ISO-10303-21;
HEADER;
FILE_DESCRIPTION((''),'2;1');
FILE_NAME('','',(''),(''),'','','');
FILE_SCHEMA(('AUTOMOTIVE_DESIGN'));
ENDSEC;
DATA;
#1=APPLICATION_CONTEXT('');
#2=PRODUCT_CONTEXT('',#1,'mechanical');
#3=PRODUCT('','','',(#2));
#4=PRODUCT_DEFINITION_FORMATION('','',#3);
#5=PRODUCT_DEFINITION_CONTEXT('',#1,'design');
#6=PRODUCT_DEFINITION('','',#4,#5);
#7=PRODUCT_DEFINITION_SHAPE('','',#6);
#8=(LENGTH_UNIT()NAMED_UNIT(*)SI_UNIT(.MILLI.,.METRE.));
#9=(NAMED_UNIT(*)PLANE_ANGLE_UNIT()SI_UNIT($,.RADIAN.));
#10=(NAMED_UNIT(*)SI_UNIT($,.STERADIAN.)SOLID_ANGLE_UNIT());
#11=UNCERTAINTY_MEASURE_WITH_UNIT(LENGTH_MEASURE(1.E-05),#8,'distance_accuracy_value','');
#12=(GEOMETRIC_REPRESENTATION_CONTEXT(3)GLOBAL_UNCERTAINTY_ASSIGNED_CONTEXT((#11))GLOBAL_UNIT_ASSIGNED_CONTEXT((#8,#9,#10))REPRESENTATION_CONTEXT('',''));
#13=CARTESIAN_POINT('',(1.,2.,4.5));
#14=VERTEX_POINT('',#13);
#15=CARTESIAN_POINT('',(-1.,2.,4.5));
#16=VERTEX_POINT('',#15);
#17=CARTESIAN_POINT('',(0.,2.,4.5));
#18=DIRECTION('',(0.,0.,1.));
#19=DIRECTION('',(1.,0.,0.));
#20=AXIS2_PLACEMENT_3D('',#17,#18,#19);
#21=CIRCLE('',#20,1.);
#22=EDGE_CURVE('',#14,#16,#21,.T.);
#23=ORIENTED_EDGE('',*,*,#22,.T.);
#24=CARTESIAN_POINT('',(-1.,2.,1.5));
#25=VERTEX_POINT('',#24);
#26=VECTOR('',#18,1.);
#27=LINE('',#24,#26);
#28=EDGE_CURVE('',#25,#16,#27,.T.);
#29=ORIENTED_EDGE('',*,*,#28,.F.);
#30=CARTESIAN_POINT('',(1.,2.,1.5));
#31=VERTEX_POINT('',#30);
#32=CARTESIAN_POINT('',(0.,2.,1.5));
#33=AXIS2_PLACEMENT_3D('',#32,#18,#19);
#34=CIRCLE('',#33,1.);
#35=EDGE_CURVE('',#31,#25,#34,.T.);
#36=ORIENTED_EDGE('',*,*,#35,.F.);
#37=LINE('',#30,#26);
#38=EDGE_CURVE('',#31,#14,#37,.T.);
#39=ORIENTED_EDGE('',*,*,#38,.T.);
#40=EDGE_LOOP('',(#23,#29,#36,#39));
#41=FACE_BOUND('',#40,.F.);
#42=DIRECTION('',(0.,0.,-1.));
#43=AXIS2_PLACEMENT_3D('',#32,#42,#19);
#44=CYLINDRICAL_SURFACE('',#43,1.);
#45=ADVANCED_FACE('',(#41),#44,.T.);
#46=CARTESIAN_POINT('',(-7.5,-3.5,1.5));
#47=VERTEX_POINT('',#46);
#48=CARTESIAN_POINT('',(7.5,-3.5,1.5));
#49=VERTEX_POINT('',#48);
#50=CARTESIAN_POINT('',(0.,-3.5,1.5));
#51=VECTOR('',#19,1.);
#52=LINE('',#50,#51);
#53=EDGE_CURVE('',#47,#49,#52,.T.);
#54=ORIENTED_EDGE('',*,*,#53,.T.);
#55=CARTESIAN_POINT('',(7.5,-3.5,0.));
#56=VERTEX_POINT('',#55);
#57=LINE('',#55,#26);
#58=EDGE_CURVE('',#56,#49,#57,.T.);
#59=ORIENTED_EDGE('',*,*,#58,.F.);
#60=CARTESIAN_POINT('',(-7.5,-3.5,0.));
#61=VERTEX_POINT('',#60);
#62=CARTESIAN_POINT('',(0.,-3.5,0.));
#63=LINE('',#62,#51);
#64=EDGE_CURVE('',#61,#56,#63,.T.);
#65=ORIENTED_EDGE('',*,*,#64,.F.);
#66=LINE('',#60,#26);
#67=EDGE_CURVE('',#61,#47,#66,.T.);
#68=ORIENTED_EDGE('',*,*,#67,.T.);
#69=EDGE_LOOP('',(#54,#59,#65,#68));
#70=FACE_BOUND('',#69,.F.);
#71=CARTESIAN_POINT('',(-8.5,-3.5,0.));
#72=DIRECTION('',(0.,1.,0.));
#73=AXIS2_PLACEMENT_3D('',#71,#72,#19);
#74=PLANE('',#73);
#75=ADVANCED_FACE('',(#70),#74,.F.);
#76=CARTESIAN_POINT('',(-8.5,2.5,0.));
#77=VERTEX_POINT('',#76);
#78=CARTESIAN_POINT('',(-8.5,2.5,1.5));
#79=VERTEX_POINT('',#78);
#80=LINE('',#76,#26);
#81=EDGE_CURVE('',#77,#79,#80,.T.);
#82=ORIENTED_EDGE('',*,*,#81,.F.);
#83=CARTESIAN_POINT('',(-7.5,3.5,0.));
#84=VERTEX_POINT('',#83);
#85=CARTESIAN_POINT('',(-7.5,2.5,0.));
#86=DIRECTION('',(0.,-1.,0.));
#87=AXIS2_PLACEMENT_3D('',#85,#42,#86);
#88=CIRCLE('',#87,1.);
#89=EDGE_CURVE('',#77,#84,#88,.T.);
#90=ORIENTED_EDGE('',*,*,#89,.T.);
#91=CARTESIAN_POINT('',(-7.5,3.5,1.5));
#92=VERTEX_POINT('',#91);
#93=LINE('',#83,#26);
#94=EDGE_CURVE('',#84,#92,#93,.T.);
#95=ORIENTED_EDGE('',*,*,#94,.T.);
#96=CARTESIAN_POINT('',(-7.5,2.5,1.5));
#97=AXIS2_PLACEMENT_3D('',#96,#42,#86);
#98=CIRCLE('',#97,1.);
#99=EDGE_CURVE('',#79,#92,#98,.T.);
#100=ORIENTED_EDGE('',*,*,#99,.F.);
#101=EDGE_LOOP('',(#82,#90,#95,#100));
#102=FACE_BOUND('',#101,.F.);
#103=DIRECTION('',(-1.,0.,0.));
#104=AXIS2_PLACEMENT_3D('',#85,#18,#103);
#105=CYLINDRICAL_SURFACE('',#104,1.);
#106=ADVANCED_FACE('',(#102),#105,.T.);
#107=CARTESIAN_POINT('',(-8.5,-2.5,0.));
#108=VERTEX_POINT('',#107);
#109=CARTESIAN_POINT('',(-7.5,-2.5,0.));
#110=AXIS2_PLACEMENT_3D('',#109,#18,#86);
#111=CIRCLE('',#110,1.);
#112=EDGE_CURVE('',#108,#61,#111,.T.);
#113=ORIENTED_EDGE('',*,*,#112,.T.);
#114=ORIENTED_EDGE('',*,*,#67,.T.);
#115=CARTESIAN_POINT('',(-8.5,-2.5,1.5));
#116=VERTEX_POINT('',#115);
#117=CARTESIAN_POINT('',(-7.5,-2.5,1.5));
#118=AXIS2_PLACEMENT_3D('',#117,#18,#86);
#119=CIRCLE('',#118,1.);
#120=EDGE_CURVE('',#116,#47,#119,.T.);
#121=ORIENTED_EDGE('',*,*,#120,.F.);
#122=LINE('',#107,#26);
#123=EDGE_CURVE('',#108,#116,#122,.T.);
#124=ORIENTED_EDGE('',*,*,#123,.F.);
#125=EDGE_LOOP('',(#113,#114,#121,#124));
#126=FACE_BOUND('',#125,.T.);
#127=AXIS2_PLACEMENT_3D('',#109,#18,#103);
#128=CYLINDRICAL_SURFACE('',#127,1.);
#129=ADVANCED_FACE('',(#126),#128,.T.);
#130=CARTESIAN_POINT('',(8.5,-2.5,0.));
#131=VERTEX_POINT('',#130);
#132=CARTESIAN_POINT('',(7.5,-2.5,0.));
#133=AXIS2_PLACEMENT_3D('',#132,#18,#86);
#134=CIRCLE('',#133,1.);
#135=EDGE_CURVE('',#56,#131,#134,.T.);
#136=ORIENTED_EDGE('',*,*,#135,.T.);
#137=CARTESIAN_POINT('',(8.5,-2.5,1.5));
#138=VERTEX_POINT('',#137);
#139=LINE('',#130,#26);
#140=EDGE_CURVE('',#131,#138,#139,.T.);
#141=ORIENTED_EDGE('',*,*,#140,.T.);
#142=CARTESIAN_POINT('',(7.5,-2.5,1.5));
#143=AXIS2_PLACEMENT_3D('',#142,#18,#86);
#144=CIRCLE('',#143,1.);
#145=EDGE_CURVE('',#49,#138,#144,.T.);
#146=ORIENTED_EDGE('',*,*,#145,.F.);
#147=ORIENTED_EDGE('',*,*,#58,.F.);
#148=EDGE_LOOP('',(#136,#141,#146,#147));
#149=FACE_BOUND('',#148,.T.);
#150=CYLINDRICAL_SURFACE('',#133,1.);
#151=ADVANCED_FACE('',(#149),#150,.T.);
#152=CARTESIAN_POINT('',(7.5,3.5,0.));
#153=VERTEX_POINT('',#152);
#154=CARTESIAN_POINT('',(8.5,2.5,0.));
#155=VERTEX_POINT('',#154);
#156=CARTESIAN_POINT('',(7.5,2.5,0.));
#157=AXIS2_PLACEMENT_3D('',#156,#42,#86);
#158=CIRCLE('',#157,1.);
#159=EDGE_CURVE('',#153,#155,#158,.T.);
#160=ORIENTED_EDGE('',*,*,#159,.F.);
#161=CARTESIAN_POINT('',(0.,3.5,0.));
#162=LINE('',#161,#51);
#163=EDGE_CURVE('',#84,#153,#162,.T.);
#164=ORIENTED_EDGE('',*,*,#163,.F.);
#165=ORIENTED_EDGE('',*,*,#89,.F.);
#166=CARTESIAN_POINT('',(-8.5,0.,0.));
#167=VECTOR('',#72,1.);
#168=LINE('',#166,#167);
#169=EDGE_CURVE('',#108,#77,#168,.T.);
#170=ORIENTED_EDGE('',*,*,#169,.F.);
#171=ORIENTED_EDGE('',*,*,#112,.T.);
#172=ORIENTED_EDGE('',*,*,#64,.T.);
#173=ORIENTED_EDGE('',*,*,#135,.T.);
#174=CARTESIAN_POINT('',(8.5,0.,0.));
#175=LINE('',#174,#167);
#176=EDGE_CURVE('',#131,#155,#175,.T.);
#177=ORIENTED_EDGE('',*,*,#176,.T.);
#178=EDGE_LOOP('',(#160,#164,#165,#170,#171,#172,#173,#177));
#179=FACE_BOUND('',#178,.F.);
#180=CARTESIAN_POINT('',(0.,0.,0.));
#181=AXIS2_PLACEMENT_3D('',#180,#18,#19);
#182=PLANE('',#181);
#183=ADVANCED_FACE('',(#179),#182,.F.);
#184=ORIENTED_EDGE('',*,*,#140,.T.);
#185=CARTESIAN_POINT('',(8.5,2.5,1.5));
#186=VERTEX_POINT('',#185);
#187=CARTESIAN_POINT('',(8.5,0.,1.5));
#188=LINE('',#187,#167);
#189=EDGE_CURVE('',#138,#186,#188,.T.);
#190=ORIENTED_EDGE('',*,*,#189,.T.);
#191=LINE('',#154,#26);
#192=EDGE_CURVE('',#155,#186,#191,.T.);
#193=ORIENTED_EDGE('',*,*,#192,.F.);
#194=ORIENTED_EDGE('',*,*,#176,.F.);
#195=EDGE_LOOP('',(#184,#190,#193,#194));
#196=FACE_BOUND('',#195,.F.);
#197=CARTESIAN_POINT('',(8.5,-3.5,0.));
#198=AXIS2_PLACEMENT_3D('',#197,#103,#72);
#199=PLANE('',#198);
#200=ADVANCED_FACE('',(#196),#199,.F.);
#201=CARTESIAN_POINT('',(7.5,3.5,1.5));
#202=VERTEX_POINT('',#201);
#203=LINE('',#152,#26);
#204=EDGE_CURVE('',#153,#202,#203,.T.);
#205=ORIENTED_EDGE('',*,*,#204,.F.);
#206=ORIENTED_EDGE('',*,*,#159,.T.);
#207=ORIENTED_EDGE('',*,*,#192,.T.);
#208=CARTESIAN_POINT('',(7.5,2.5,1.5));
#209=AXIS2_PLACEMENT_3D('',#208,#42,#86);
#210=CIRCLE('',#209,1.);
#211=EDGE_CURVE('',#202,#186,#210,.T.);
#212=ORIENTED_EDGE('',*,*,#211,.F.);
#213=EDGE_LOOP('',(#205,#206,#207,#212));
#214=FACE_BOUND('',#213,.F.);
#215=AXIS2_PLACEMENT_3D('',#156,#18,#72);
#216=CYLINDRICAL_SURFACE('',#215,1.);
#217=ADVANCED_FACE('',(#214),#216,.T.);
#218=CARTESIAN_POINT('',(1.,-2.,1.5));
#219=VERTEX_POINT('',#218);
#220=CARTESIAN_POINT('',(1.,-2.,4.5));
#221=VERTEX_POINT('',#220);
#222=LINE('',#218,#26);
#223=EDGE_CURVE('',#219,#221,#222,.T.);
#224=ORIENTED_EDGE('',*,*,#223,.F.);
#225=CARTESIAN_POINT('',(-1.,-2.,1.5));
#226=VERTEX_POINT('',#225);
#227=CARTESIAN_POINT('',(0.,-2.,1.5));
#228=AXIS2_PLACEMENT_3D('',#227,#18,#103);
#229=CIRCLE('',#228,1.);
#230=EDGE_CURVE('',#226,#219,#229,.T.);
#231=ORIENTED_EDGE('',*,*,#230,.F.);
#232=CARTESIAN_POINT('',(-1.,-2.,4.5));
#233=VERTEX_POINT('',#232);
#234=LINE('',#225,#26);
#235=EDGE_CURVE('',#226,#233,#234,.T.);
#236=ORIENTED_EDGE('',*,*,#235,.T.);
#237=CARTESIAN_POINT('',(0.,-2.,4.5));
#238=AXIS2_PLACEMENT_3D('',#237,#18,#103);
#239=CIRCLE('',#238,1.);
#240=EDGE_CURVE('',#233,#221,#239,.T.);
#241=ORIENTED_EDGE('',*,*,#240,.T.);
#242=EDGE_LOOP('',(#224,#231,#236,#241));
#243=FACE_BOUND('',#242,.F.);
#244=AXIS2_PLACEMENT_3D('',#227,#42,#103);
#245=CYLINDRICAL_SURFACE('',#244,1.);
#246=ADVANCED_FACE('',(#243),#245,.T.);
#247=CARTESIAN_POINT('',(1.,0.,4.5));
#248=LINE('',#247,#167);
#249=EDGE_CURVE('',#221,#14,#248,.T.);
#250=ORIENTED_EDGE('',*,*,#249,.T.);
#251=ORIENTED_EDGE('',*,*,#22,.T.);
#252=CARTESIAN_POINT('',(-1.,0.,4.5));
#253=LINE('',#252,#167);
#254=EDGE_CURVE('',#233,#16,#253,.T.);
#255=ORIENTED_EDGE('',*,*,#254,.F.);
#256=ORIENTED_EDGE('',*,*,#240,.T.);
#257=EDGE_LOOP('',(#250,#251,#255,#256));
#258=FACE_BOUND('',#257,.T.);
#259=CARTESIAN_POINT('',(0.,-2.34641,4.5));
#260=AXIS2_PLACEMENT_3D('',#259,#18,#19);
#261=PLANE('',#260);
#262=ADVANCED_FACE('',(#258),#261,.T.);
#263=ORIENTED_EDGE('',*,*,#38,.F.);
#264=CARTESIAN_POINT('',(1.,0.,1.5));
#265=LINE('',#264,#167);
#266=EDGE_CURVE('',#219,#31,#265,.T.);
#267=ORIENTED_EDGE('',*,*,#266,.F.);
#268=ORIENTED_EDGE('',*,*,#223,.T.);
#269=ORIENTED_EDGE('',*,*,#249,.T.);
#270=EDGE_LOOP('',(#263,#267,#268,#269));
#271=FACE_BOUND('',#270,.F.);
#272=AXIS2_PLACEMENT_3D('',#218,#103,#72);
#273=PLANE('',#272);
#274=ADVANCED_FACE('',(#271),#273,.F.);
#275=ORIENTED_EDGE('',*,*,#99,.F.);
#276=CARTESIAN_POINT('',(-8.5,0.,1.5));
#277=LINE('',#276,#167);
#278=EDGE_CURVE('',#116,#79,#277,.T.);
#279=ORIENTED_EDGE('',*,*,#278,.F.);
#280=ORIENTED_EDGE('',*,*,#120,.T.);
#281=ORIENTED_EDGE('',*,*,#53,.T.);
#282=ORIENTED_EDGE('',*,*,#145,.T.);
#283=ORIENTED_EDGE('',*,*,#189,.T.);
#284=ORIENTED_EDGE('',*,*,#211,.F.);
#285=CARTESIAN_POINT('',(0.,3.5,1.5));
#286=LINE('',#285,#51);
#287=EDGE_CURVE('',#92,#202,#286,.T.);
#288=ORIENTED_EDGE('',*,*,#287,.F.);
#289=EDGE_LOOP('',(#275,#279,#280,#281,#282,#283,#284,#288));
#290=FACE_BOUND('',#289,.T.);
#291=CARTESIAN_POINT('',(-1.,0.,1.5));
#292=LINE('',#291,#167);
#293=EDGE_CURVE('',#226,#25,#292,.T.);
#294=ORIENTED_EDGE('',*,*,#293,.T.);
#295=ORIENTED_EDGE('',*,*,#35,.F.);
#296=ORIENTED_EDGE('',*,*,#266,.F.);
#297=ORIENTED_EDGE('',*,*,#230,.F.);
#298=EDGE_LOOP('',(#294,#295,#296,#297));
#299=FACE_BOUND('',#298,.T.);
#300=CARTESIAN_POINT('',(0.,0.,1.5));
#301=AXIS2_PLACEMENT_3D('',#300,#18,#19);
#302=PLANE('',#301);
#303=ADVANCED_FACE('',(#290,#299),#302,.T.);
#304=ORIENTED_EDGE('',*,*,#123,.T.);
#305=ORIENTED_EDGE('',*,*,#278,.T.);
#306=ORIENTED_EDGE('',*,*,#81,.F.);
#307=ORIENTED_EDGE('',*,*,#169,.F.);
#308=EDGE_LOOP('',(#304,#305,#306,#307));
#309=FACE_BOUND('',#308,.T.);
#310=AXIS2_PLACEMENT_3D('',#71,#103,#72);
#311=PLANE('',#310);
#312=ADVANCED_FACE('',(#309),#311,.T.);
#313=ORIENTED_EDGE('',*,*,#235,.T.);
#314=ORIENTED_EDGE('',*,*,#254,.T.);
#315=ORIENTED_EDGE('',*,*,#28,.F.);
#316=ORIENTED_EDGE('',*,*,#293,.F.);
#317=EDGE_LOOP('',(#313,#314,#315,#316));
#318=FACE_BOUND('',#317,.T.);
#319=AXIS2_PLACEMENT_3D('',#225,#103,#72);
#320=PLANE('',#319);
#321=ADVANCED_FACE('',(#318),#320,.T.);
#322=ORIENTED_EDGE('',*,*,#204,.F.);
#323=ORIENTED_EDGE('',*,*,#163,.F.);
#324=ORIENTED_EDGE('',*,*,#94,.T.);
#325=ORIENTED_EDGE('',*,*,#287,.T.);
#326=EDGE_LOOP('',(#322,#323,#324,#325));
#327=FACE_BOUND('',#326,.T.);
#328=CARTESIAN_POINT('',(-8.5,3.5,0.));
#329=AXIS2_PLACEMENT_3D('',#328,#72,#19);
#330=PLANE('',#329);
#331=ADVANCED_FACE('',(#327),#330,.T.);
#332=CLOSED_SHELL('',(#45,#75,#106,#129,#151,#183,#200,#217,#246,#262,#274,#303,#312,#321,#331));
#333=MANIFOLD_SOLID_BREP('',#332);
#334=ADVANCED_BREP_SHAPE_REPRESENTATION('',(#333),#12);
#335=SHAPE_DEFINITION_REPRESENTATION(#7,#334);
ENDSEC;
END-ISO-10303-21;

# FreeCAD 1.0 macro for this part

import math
import FreeCAD as App
import Part
import Sketcher

V = App.Vector
Q = App.Units.Quantity


def edges_at(feature, points):
    """Names of the edges that pass closest to the given points."""
    edges = feature.Shape.Edges
    near = lambda p: min(range(len(edges)), key=lambda i: edges[i].distToShape(Part.Vertex(*p))[0])
    return sorted({f"Edge{near(p) + 1}" for p in points})


def add_polygon(sketch, points):
    """Adds a closed chain of lines whose ends are joined by coincident constraints."""
    first, n = sketch.GeometryCount, len(points)
    for a, b in zip(points, points[1:] + points[:1]):
        sketch.addGeometry(Part.LineSegment(App.Vector(*a, 0), App.Vector(*b, 0)), False)
    for i in range(n):
        sketch.addConstraint(Sketcher.Constraint("Coincident", first + i, 2, first + (i + 1) % n, 1))

doc = App.newDocument("Part")
body = doc.addObject("PartDesign::Body", "Body")

# Sketch on XY plane
sketch1 = doc.addObject("Sketcher::SketchObject", "Sketch")
body.addObject(sketch1)
sketch1.AttachmentSupport = (doc.XY_Plane, [""])
sketch1.MapMode = "FlatFace"
add_polygon(sketch1, [(-8.5, 3.5), (-8.5, -3.5), (8.5, -3.5), (8.5, 3.5)])  # lines 0-3
sketch1.addConstraint(Sketcher.Constraint("Vertical", 0))
sketch1.addConstraint(Sketcher.Constraint("Horizontal", 1))
sketch1.addConstraint(Sketcher.Constraint("Vertical", 2))
sketch1.addConstraint(Sketcher.Constraint("Horizontal", 3))
sketch1.addConstraint(Sketcher.Constraint("Symmetric", 0, 2, 2, 2, -1, 1))
sketch1.addConstraint(Sketcher.Constraint("DistanceX", 1, 1, 1, 2, Q("17 mm")))
sketch1.addConstraint(Sketcher.Constraint("DistanceY", 0, 2, 0, 1, Q("7 mm")))
pad1 = doc.addObject("PartDesign::Pad", "Pad")
body.addObject(pad1)
pad1.Profile = sketch1
pad1.Length = 1.5

# Sketch on XY plane
sketch2 = doc.addObject("Sketcher::SketchObject", "Sketch001")
body.addObject(sketch2)
sketch2.AttachmentSupport = (doc.XY_Plane, [""])
sketch2.MapMode = "FlatFace"
sketch2.AttachmentOffset = App.Placement(V(0, 0, 1.5), App.Rotation())
sketch2.addGeometry(Part.ArcOfCircle(Part.Circle(V(0, -2, 0), V(0, 0, 1), 1), math.radians(180), math.radians(360)), False)
sketch2.addGeometry(Part.LineSegment(V(1, -2, 0), V(1, 2, 0)), False)
sketch2.addGeometry(Part.ArcOfCircle(Part.Circle(V(0, 2, 0), V(0, 0, 1), 1), math.radians(0), math.radians(180)), False)
sketch2.addGeometry(Part.LineSegment(V(-1, 2, 0), V(-1, -2, 0)), False)
sketch2.addConstraint(Sketcher.Constraint("Tangent", 0, 2, 1, 1))
sketch2.addConstraint(Sketcher.Constraint("Tangent", 1, 2, 2, 1))
sketch2.addConstraint(Sketcher.Constraint("Tangent", 2, 2, 3, 1))
sketch2.addConstraint(Sketcher.Constraint("Tangent", 3, 2, 0, 1))
sketch2.addConstraint(Sketcher.Constraint("Vertical", 1))
sketch2.addConstraint(Sketcher.Constraint("Vertical", 3))
sketch2.addConstraint(Sketcher.Constraint("Symmetric", 0, 3, 2, 3, -1, 1))
sketch2.addConstraint(Sketcher.Constraint("Radius", 0, Q("1 mm")))
sketch2.addConstraint(Sketcher.Constraint("DistanceY", 1, 1, 1, 2, Q("4 mm")))
pad2 = doc.addObject("PartDesign::Pad", "Pad001")
body.addObject(pad2)
pad2.Profile = sketch2
pad2.Length = 3
doc.recompute()

fillet = doc.addObject("PartDesign::Fillet", "Fillet")
body.addObject(fillet)
fillet.Base = (pad2, edges_at(pad2, [
    (-8.5, 3.5, 0.75),
    (-8.5, -3.5, 0.75),
    (8.5, 3.5, 0.75),
    (8.5, -3.5, 0.75),
]))
fillet.Radius = 1

doc.recompute()
